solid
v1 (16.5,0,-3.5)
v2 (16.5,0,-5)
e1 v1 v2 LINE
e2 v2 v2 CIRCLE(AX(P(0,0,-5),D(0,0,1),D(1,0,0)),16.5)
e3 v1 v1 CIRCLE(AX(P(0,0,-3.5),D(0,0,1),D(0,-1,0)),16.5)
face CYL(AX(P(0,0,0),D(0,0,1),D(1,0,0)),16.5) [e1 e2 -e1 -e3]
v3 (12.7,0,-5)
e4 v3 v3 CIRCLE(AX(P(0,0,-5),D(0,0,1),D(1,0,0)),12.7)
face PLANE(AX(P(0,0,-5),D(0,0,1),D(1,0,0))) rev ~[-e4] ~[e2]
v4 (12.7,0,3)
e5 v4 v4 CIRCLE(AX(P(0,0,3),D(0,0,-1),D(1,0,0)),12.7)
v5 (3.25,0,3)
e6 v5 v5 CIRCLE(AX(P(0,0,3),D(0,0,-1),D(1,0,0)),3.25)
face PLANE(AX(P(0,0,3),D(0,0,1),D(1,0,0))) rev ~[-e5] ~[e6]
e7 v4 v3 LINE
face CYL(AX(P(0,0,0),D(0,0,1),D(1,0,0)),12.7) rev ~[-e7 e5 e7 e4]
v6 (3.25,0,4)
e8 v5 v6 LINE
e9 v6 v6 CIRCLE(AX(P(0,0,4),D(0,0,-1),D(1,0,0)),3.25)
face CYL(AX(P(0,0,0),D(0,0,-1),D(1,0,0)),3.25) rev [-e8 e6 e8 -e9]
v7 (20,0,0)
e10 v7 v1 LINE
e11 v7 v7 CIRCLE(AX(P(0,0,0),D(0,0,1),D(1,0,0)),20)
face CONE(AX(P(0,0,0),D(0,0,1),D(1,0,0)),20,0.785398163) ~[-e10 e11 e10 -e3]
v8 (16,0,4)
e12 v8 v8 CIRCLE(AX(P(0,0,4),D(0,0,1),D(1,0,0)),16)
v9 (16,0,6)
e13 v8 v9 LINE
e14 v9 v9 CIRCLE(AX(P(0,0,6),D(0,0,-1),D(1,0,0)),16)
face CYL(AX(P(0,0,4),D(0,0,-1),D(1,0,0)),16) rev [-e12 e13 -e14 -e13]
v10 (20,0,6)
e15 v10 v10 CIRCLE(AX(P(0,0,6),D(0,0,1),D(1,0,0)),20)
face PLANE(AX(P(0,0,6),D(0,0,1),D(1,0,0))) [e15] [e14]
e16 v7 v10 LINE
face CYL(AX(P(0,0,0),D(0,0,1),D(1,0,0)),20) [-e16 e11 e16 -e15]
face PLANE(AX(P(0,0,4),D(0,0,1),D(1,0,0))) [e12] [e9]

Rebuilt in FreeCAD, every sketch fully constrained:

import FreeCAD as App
import Part
import Sketcher
from FreeCAD import Vector


def edges_at(feature, points):
    """Names of the edges that pass closest to the given points."""
    edges = feature.Shape.Edges
    near = lambda p: min(range(len(edges)), key=lambda i: edges[i].distToShape(Part.Vertex(*p))[0])
    return sorted({f"Edge{near(p) + 1}" for p in points})

doc = App.newDocument("Part")
body = doc.addObject("PartDesign::Body", "Body")

sketch1 = doc.addObject("Sketcher::SketchObject", "Sketch")
body.addObject(sketch1)
sketch1.AttachmentSupport = (doc.XY_Plane, [""])
sketch1.MapMode = "FlatFace"
sketch1.addGeometry([
    Part.Circle(Vector(0, 0, 0), Vector(0, 0, 1), 12.8),
    Part.Circle(Vector(0, 0, 0), Vector(0, 0, 1), 3.2),
], False)
sketch1.addConstraint([
    Sketcher.Constraint("Coincident", 0, 3, -1, 1),
    Sketcher.Constraint("Coincident", 1, 3, -1, 1),
    Sketcher.Constraint("Diameter", 0, 25.5),
    Sketcher.Constraint("Diameter", 1, 6.5),
])
pad1 = doc.addObject("PartDesign::Pad", "Pad")
body.addObject(pad1)
pad1.Profile = sketch1
pad1.Length = 5

sketch2 = doc.addObject("Sketcher::SketchObject", "Sketch001")
body.addObject(sketch2)
sketch2.AttachmentSupport = (doc.XY_Plane, [""])
sketch2.MapMode = "FlatFace"
sketch2.addGeometry([
    Part.Circle(Vector(0, 0, 0), Vector(0, 0, 1), 20),
    Part.Circle(Vector(0, 0, 0), Vector(0, 0, 1), 13),
], False)
sketch2.addConstraint([
    Sketcher.Constraint("Coincident", 0, 3, -1, 1),
    Sketcher.Constraint("Coincident", 1, 3, -1, 1),
    Sketcher.Constraint("Diameter", 0, 40.0),
    Sketcher.Constraint("Diameter", 1, 25.5),
])
pad2 = doc.addObject("PartDesign::Pad", "Pad001")
body.addObject(pad2)
pad2.Profile = sketch2
pad2.Type = "TwoLengths"
pad2.Length = 6
pad2.Length2 = 5
doc.recompute()

chamfer = doc.addObject("PartDesign::Chamfer", "Chamfer")
body.addObject(chamfer)
chamfer.Base = (pad2, edges_at(pad2, [(-20, 0, -5)]))
chamfer.Size = 5

sketch3 = doc.addObject("Sketcher::SketchObject", "Sketch002")
body.addObject(sketch3)
sketch3.AttachmentSupport = (doc.XY_Plane, [""])
sketch3.MapMode = "FlatFace"
sketch3.addGeometry(Part.Circle(Vector(0, 0, 0), Vector(0, 0, 1), 16), False)
sketch3.addConstraint([
    Sketcher.Constraint("Coincident", 0, 3, -1, 1),
    Sketcher.Constraint("Diameter", 0, 32.0),
])
pocket1 = doc.addObject("PartDesign::Pocket", "Pocket")
body.addObject(pocket1)
pocket1.Profile = sketch3
pocket1.Length = 3
pocket1.Reversed = True

sketch4 = doc.addObject("Sketcher::SketchObject", "Sketch003")
body.addObject(sketch4)
sketch4.AttachmentSupport = (doc.XY_Plane, [""])
sketch4.MapMode = "FlatFace"
sketch4.AttachmentOffset = App.Placement(Vector(0, 0, 4), App.Rotation())
sketch4.addGeometry(Part.Circle(Vector(0, 0, 0), Vector(0, 0, 1), 16), False)
sketch4.addConstraint([
    Sketcher.Constraint("Coincident", 0, 3, -1, 1),
    Sketcher.Constraint("Diameter", 0, 32.0),
])
pocket2 = doc.addObject("PartDesign::Pocket", "Pocket001")
body.addObject(pocket2)
pocket2.Profile = sketch4
pocket2.Length = 21
pocket2.Reversed = True

sketch5 = doc.addObject("Sketcher::SketchObject", "Sketch004")
body.addObject(sketch5)
sketch5.AttachmentSupport = (doc.XY_Plane, [""])
sketch5.MapMode = "FlatFace"
sketch5.addGeometry([
    Part.Circle(Vector(0, 0, 0), Vector(0, 0, 1), 16),
    Part.Circle(Vector(0, 0, 0), Vector(0, 0, 1), 13),
], False)
sketch5.addConstraint([
    Sketcher.Constraint("Coincident", 0, 3, -1, 1),
    Sketcher.Constraint("Coincident", 1, 3, -1, 1),
    Sketcher.Constraint("Diameter", 0, 33.0),
    Sketcher.Constraint("Diameter", 1, 25.4),
])
pad3 = doc.addObject("PartDesign::Pad", "Pad002")
body.addObject(pad3)
pad3.Profile = sketch5
pad3.Type = "TwoLengths"
pad3.Length = 4
pad3.Length2 = 5

doc.recompute()
